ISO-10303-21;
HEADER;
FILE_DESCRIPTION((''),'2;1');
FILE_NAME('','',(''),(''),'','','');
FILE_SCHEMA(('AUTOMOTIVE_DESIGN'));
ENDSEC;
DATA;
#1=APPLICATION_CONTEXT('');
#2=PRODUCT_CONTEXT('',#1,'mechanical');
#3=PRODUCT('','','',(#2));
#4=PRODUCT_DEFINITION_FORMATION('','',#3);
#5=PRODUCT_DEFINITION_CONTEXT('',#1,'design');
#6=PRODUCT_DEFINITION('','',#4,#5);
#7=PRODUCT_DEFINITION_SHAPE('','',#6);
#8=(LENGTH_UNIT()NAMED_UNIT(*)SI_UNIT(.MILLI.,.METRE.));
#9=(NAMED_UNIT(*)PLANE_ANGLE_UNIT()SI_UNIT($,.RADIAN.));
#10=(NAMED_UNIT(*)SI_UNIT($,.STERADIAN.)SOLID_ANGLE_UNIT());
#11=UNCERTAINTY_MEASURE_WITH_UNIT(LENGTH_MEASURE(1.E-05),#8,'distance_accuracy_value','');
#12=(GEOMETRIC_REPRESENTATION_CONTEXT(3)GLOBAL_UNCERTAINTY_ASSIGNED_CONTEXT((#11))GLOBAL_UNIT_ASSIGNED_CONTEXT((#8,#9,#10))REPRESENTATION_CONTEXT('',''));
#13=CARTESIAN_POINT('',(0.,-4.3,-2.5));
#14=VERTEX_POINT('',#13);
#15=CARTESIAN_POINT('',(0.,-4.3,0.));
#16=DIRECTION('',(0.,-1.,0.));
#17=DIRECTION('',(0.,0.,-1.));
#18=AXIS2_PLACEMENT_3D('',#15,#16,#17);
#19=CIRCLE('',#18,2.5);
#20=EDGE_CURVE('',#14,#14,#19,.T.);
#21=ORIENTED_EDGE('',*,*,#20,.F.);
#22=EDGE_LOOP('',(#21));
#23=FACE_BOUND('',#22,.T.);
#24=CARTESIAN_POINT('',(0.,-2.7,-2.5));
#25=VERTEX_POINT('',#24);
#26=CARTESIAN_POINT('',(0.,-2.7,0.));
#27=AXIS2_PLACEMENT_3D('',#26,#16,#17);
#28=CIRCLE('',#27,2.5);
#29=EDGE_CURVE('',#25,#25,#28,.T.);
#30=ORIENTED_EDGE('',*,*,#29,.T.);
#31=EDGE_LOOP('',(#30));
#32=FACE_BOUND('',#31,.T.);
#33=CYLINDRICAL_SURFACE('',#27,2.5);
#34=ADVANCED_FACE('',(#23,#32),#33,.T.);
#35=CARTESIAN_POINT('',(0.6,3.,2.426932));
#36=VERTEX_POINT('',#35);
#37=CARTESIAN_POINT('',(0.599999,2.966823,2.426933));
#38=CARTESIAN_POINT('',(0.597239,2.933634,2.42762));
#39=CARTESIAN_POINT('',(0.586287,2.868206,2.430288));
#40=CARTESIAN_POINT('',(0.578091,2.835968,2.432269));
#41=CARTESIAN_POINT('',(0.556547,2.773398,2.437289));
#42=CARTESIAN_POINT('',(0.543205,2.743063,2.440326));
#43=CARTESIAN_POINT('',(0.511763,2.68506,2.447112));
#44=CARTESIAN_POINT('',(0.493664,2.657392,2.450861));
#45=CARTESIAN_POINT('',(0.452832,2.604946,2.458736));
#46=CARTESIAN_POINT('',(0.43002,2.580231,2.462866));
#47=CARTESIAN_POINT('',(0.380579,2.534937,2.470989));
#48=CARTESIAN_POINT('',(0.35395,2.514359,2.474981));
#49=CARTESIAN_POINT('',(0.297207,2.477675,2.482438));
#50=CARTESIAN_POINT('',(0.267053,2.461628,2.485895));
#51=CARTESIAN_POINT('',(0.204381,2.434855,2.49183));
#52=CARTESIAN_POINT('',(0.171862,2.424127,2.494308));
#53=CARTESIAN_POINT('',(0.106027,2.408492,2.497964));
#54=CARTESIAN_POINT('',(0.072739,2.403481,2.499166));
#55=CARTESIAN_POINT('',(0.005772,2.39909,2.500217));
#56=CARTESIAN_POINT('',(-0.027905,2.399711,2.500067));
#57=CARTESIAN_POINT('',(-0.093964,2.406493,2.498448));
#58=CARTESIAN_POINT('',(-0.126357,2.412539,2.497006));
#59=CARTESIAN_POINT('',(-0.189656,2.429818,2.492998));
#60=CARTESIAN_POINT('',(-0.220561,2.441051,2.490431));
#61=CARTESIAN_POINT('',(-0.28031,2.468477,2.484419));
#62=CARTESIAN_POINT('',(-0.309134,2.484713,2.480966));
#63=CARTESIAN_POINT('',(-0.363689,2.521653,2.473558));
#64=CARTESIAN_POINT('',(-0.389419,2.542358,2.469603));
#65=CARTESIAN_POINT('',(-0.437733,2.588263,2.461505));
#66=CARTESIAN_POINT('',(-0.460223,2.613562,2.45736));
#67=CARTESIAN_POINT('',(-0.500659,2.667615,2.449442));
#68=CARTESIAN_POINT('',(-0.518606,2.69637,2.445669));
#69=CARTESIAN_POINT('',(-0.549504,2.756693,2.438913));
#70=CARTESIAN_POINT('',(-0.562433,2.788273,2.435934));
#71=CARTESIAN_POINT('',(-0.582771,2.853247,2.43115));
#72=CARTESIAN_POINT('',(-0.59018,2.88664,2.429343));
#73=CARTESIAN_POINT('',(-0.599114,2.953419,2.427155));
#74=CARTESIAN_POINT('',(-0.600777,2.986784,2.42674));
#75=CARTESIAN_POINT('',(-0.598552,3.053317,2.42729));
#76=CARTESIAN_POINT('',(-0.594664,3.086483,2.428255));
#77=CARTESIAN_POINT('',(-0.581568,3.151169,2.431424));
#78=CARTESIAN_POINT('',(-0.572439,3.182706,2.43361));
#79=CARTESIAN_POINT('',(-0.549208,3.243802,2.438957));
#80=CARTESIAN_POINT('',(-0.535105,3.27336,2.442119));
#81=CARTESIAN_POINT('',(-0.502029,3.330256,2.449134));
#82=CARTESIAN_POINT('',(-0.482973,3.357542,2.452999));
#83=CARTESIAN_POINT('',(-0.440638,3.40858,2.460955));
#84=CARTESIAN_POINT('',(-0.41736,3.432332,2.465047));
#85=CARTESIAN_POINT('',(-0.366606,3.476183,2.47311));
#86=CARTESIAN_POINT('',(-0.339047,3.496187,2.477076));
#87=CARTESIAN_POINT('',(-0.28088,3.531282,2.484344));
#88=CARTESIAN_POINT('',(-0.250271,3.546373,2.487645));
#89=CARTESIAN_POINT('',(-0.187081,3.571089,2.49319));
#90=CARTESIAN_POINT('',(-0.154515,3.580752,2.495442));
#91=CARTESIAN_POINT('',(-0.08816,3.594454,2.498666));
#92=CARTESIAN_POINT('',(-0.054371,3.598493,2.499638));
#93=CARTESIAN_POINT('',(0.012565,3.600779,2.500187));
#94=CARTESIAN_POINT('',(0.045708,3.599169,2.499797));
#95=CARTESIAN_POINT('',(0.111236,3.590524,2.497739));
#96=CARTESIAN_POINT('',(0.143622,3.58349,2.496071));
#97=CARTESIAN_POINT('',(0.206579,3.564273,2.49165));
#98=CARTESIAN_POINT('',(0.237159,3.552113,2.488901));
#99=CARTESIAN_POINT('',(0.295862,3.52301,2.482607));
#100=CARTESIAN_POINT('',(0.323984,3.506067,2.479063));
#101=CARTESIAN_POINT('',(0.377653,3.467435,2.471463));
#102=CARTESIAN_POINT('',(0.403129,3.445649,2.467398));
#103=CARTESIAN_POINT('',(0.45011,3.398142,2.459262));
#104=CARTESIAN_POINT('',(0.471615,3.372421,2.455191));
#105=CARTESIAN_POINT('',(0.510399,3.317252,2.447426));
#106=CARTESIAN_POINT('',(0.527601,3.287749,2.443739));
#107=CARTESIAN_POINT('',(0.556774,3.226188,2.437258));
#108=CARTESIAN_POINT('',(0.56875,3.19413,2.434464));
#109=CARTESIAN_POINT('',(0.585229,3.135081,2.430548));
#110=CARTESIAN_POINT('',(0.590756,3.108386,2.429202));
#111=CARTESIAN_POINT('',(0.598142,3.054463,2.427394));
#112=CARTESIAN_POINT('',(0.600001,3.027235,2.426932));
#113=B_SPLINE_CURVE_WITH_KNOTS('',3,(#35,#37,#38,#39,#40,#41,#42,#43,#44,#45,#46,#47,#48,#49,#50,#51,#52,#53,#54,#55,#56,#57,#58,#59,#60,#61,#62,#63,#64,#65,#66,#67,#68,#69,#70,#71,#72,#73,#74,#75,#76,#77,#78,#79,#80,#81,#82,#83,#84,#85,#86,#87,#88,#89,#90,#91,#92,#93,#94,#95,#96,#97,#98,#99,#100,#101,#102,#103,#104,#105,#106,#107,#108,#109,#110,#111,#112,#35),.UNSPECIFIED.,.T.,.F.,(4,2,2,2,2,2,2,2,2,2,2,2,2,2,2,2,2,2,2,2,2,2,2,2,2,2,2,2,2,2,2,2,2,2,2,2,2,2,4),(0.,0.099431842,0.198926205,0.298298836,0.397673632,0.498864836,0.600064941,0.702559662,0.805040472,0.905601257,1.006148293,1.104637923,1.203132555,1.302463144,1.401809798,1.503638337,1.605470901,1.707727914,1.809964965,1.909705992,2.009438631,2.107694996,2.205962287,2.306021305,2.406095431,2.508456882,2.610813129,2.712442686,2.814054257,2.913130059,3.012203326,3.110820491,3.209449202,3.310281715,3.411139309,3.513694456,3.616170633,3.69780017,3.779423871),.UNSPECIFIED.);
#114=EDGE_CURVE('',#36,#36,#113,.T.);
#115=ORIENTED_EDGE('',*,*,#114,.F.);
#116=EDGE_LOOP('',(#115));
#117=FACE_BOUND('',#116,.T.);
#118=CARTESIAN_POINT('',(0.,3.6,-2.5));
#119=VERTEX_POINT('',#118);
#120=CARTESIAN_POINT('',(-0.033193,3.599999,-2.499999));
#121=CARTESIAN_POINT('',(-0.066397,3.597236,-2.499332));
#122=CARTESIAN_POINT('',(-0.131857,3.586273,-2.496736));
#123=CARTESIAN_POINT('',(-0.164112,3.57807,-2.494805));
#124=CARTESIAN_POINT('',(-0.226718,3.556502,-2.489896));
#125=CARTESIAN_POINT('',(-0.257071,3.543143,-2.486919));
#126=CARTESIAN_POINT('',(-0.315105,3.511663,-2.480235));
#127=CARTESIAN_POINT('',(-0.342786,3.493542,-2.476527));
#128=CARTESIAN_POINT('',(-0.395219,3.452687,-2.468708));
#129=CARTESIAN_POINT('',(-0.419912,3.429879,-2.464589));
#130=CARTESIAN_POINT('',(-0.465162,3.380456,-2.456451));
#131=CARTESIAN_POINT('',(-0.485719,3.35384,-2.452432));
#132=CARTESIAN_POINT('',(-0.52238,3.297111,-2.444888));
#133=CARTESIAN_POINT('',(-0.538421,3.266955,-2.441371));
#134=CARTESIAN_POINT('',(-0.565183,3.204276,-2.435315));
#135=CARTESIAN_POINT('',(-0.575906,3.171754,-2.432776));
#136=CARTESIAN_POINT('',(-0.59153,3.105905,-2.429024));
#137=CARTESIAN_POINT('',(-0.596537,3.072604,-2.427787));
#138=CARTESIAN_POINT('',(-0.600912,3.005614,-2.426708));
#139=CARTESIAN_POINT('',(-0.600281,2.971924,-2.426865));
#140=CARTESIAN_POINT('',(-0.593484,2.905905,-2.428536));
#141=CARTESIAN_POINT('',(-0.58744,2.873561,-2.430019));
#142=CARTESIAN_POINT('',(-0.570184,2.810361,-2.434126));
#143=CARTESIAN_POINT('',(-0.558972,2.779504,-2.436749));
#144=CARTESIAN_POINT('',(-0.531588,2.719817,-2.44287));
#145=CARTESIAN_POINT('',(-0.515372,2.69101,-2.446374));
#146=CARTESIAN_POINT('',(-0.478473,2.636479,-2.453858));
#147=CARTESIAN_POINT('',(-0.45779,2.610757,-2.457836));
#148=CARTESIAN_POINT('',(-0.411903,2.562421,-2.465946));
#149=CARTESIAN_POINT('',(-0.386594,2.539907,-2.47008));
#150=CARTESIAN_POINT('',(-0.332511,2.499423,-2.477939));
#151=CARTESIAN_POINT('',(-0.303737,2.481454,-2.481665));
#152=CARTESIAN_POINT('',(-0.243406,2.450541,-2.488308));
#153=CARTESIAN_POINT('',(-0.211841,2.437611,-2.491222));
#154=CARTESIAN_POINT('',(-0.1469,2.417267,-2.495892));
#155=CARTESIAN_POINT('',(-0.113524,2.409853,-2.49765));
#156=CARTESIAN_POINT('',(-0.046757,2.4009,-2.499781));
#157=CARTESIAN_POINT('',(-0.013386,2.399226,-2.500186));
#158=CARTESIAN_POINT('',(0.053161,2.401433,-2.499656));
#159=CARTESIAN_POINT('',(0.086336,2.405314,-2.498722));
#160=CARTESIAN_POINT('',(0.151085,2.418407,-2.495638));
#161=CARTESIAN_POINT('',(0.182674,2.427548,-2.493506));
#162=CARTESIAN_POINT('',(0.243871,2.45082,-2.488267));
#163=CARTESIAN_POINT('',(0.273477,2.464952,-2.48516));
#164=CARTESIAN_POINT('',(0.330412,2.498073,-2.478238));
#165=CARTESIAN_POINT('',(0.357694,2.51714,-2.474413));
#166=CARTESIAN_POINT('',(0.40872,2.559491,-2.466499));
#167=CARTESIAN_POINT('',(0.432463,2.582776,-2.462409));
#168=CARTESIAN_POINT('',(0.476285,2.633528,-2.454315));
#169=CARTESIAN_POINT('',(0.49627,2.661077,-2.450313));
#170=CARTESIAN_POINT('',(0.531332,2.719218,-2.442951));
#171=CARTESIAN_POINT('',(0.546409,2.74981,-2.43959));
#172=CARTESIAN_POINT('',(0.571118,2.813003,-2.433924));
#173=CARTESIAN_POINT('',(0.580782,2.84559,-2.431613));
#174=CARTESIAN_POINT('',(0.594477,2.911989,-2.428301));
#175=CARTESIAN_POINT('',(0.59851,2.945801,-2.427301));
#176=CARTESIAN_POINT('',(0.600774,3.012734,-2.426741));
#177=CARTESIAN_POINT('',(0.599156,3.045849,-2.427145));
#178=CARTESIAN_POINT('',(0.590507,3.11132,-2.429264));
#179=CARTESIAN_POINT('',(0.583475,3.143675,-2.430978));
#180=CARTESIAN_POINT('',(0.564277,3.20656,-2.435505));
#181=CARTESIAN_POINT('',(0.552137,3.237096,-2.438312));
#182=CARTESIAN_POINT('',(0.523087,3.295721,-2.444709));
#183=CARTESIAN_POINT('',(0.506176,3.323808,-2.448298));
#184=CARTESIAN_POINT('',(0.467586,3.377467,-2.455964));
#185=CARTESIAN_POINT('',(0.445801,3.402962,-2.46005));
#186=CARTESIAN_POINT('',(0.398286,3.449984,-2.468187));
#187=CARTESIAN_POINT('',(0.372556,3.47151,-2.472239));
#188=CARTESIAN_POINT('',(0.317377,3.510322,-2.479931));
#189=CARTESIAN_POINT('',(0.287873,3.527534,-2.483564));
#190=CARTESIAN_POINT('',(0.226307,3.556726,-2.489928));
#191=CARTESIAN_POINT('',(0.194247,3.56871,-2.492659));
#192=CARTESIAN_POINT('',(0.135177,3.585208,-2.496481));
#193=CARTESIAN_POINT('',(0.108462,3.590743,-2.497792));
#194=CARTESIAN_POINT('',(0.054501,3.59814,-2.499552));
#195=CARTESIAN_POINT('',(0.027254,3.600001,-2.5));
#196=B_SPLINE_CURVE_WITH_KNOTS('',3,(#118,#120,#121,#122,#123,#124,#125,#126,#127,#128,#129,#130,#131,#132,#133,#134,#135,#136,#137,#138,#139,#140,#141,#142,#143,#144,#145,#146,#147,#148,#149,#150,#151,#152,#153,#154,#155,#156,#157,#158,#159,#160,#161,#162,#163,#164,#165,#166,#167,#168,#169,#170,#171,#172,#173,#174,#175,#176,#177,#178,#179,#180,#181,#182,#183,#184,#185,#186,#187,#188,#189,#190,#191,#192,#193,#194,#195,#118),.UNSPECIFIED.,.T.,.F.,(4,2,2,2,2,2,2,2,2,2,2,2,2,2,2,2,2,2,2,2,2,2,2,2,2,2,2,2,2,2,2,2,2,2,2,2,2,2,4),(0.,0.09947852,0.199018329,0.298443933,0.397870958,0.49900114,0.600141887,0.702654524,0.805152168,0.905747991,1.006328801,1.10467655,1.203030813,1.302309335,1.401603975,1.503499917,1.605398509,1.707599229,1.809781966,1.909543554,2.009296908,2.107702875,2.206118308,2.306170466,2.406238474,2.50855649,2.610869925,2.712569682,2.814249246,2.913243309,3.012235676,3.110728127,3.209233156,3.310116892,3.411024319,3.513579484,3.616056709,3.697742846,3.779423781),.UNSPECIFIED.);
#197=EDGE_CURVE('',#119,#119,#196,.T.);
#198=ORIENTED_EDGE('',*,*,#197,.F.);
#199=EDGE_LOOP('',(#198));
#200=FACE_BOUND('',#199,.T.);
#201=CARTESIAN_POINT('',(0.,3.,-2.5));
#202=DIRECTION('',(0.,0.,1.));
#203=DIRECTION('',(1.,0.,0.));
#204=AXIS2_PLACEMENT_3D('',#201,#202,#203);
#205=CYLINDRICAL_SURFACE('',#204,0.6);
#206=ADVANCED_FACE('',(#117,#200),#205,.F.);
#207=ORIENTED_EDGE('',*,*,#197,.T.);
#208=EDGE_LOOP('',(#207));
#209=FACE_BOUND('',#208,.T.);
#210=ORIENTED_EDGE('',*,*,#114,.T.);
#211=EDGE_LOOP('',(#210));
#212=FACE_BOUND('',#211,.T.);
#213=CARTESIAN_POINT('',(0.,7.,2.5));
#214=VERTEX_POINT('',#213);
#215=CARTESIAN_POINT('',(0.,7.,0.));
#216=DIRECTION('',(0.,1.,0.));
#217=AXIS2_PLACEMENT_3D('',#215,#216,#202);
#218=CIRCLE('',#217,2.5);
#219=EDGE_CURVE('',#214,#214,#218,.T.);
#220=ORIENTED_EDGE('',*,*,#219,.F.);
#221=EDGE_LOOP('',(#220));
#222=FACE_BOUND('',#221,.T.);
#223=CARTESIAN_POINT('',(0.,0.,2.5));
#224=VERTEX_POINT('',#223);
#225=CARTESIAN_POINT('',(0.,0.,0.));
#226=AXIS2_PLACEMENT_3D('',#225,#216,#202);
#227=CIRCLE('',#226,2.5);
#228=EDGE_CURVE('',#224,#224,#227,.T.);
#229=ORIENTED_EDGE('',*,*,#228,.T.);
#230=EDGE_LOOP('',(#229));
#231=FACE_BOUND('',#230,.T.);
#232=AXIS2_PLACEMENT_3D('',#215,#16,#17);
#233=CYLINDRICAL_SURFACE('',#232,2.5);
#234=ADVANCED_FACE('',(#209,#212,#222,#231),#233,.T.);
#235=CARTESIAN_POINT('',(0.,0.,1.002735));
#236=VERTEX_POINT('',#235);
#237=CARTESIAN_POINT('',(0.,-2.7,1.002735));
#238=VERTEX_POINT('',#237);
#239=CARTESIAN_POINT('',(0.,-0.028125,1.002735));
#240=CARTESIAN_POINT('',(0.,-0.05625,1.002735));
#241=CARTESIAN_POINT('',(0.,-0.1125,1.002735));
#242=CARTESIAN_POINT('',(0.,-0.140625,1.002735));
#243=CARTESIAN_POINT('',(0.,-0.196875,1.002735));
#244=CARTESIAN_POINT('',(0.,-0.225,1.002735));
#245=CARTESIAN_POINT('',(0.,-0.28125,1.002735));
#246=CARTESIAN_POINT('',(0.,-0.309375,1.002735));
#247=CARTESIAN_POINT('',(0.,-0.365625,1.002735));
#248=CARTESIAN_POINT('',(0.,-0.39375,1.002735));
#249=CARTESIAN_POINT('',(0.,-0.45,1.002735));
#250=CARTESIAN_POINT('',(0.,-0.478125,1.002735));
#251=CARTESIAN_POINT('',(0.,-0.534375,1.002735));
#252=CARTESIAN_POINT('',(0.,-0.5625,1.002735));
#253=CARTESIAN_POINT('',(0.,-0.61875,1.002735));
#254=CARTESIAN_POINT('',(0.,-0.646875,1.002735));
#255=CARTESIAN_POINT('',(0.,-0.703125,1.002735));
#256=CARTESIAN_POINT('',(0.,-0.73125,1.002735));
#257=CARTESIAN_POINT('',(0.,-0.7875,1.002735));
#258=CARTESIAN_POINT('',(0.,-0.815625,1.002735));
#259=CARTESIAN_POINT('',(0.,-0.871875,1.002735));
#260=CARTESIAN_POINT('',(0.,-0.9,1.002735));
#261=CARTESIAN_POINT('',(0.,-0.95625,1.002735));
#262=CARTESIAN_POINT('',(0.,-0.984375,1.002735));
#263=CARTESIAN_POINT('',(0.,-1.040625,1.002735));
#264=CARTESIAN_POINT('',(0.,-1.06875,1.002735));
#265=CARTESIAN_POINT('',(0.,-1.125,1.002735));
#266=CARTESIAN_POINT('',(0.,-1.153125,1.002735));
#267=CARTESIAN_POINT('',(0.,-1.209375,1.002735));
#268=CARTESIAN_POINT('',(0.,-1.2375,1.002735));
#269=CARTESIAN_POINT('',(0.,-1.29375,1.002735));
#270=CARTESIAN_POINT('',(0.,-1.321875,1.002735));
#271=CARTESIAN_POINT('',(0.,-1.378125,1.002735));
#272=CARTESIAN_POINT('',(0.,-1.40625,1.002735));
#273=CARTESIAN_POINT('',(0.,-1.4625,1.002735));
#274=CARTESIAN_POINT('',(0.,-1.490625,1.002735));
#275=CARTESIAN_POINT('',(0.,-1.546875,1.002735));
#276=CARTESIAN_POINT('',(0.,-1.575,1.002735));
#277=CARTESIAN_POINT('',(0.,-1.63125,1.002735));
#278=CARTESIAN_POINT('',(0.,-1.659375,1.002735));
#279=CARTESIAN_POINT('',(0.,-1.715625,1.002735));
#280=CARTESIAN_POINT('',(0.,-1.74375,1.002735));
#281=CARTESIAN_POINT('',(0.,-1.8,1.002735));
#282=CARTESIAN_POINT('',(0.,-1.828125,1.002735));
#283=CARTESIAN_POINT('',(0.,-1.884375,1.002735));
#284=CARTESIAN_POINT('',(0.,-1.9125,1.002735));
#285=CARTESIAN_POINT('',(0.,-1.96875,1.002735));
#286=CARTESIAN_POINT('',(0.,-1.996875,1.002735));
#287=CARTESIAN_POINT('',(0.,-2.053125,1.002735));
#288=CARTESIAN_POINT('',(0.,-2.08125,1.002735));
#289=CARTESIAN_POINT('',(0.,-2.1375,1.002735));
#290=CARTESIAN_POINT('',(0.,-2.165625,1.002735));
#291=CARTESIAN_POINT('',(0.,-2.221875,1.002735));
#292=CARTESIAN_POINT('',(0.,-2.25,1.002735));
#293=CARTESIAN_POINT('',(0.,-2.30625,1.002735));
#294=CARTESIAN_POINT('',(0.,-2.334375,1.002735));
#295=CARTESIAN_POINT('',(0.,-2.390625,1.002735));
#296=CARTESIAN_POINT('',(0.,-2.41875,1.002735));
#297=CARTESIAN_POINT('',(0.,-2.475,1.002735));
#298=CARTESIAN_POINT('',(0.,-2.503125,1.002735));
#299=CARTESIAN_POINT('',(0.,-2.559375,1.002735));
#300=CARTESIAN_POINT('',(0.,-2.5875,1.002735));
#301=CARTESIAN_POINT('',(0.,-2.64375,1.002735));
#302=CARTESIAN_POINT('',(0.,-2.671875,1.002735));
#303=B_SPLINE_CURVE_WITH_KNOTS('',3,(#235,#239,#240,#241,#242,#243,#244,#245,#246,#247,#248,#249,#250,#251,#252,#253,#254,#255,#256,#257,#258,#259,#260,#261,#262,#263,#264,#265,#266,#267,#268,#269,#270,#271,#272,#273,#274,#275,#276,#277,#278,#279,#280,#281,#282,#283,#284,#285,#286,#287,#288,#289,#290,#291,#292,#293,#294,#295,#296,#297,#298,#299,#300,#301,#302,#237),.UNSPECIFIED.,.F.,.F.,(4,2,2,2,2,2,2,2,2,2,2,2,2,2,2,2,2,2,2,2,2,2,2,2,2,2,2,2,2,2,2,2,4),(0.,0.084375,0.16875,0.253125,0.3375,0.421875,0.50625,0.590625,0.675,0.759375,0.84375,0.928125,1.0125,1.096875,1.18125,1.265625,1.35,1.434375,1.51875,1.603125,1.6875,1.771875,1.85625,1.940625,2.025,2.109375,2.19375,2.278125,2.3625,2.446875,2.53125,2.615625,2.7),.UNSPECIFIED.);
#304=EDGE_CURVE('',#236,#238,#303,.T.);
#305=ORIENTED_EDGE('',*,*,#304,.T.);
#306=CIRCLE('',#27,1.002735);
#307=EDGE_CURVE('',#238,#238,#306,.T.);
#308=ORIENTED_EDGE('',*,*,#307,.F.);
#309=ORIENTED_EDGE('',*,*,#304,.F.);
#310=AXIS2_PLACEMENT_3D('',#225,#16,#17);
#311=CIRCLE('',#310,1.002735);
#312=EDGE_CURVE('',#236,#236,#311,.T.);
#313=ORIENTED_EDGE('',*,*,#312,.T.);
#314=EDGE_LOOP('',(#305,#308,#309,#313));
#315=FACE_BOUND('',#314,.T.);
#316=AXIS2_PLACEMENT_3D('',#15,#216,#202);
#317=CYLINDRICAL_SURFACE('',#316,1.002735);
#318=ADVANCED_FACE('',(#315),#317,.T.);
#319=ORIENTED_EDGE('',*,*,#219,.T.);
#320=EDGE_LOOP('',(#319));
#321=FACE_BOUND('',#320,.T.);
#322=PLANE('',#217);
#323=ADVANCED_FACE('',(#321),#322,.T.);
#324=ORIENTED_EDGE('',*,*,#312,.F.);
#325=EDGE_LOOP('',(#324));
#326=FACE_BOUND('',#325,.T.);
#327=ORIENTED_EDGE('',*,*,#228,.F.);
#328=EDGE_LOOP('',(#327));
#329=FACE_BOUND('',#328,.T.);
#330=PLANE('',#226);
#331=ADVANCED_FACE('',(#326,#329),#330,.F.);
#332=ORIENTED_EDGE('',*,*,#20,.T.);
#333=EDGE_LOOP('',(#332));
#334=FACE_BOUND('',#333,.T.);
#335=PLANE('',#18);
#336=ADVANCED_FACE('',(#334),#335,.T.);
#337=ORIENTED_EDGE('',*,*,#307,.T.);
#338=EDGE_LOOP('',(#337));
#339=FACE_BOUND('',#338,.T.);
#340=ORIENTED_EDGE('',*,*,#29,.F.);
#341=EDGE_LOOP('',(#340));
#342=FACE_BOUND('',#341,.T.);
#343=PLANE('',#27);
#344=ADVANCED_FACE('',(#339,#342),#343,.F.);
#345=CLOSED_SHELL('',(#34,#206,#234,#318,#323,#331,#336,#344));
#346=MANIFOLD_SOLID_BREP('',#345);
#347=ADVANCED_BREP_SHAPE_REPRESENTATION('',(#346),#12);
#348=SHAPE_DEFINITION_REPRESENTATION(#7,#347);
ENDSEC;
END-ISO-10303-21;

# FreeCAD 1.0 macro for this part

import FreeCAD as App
import Part
import Sketcher

V = App.Vector

doc = App.newDocument("Part")
body = doc.addObject("PartDesign::Body", "Body")

# Sketch on XZ plane
sketch1 = body.newObject("Sketcher::SketchObject", "Sketch")
sketch1.AttachmentSupport = (doc.getObject("XZ_Plane"), [""])
sketch1.MapMode = "FlatFace"
sketch1.addGeometry(Part.Circle(V(0, 0, 0), V(0, 0, 1), 2.5), False)
sketch1.addConstraint([
    Sketcher.Constraint("Coincident", 0, 3, -1, 1),
    Sketcher.Constraint("Diameter", 0, 5.0),
])
pad1 = body.newObject("PartDesign::Pad", "Pad")
pad1.Profile = sketch1
pad1.Length = 7
pad1.Reversed = True

# Sketch on XY plane
sketch2 = body.newObject("Sketcher::SketchObject", "Sketch001")
sketch2.AttachmentSupport = (doc.getObject("XY_Plane"), [""])
sketch2.MapMode = "FlatFace"
sketch2.addGeometry(Part.Circle(V(0, 3, 0), V(0, 0, 1), 0.6), False)
sketch2.addConstraint([
    Sketcher.Constraint("PointOnObject", 0, 3, -2),
    Sketcher.Constraint("Diameter", 0, 1.2),
    Sketcher.Constraint("DistanceY", -1, 1, 0, 3, 3.0),
])
pocket1 = body.newObject("PartDesign::Pocket", "Pocket")
pocket1.Profile = sketch2
pocket1.Type = "ThroughAll"
pocket1.Midplane = True

# Sketch on XZ plane
sketch3 = body.newObject("Sketcher::SketchObject", "Sketch002")
sketch3.AttachmentSupport = (doc.getObject("XZ_Plane"), [""])
sketch3.MapMode = "FlatFace"
sketch3.addGeometry(Part.Circle(V(0, 0, 0), V(0, 0, 1), 1), False)
sketch3.addConstraint([
    Sketcher.Constraint("Coincident", 0, 3, -1, 1),
    Sketcher.Constraint("Diameter", 0, 2.005469),
])
pad2 = body.newObject("PartDesign::Pad", "Pad001")
pad2.Profile = sketch3
pad2.Length = 4.3

# Sketch on XZ plane
sketch4 = body.newObject("Sketcher::SketchObject", "Sketch003")
sketch4.AttachmentSupport = (doc.getObject("XZ_Plane"), [""])
sketch4.MapMode = "FlatFace"
sketch4.AttachmentOffset = App.Placement(V(0, 0, 4.3), App.Rotation())
sketch4.addGeometry(Part.Circle(V(0, 0, 0), V(0, 0, 1), 2.5), False)
sketch4.addConstraint([
    Sketcher.Constraint("Coincident", 0, 3, -1, 1),
    Sketcher.Constraint("Diameter", 0, 5.0),
])
pad3 = body.newObject("PartDesign::Pad", "Pad002")
pad3.Profile = sketch4
pad3.Length = 1.6
pad3.Reversed = True

doc.recompute()
